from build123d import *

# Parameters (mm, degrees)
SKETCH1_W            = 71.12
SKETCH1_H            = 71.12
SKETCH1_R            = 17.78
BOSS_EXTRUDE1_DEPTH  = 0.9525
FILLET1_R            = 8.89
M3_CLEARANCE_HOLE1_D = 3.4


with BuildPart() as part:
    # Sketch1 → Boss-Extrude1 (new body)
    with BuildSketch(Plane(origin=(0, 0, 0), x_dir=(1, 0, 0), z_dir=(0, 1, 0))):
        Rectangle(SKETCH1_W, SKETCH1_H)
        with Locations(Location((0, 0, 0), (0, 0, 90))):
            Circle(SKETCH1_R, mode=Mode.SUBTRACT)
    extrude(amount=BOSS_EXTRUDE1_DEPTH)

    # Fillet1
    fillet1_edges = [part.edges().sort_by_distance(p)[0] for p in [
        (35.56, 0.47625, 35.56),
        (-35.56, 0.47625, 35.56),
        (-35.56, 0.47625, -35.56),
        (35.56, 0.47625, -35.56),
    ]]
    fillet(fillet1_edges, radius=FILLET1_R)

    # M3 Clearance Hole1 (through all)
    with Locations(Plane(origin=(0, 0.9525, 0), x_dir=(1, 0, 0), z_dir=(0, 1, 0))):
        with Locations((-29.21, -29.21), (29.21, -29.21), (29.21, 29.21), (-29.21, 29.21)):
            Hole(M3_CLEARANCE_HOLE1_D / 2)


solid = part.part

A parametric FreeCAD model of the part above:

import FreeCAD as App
import Part
import Sketcher
from FreeCAD import Vector
Q = App.Units.Quantity


def edges_at(feature, points):
    """Names of the edges that pass closest to the given points."""
    edges = feature.Shape.Edges
    near = lambda p: min(range(len(edges)), key=lambda i: edges[i].distToShape(Part.Vertex(*p))[0])
    return sorted({f"Edge{near(p) + 1}" for p in points})

doc = App.newDocument("Part")
params = doc.addObject("Spreadsheet::Sheet", "Params")
for row, (alias, value) in enumerate([
    ("sketch1_diameter", "1.4 in"),
    ("sketch1_width", "2.8 in"),
    ("pad1_length", "0.0375 in"),
    ("fillet_radius", "0.35 in"),
    ("hole_diameter", "3.4 mm"),
], start=1):
    params.set(f"A{row}", alias)
    params.set(f"B{row}", "=" + value)
    params.setAlias(f"B{row}", alias)

body = doc.addObject("PartDesign::Body", "Body")

# Sketch on XZ plane
sketch1 = doc.addObject("Sketcher::SketchObject", "Sketch")
body.addObject(sketch1)
sketch1.AttachmentSupport = (doc.XZ_Plane, [""])
sketch1.MapMode = "FlatFace"
sketch1.addGeometry([
    Part.LineSegment(Vector(-36, -36, 0), Vector(-36, 36, 0)),  # 0
    Part.LineSegment(Vector(-36, 36, 0), Vector(36, 36, 0)),  # 1
    Part.LineSegment(Vector(36, 36, 0), Vector(36, -36, 0)),  # 2
    Part.LineSegment(Vector(36, -36, 0), Vector(-36, -36, 0)),  # 3
    Part.Circle(Vector(0, 0, 0), Vector(0, 0, 1), 18),  # 4
], False)
sketch1.addConstraint([
    Sketcher.Constraint("Coincident", 0, 2, 1, 1),
    Sketcher.Constraint("Coincident", 1, 2, 2, 1),
    Sketcher.Constraint("Coincident", 2, 2, 3, 1),
    Sketcher.Constraint("Coincident", 3, 2, 0, 1),
    Sketcher.Constraint("Vertical", 0),
    Sketcher.Constraint("Horizontal", 1),
    Sketcher.Constraint("Vertical", 2),
    Sketcher.Constraint("Horizontal", 3),
    Sketcher.Constraint("Coincident", 4, 3, -1, 1),
    Sketcher.Constraint("Symmetric", 0, 2, 2, 2, -1, 1),
    Sketcher.Constraint("Equal", 3, 0),
    Sketcher.Constraint("Diameter", 4, Q("1.4 in")),
    Sketcher.Constraint("DistanceX", 1, 1, 1, 2, Q("2.8 in")),
])
sketch1.setExpression("Constraints[11]", "Params.sketch1_diameter")
sketch1.setExpression("Constraints[12]", "Params.sketch1_width")
pad1 = doc.addObject("PartDesign::Pad", "Pad")
body.addObject(pad1)
pad1.Profile = sketch1
pad1.setExpression("Length", "Params.pad1_length")
pad1.Reversed = True
doc.recompute()

fillet = doc.addObject("PartDesign::Fillet", "Fillet")
body.addObject(fillet)
fillet.Base = (pad1, edges_at(pad1, [
    (35.56, 0.476, 35.56),
    (-35.56, 0.476, 35.56),
    (-35.56, 0.476, -35.56),
    (35.56, 0.476, -35.56),
]))
fillet.setExpression("Radius", "Params.fillet_radius")

# Sketch on XZ plane
sketch2 = doc.addObject("Sketcher::SketchObject", "Sketch001")
body.addObject(sketch2)
sketch2.AttachmentSupport = (doc.XZ_Plane, [""])
sketch2.MapMode = "FlatFace"
sketch2.AttachmentOffset = App.Placement(Vector(0, 0, -0.0375 * 25.4), App.Rotation())
sketch2.addGeometry([
    Part.Circle(Vector(-29.2, 29.2, 0), Vector(0, 0, 1), 1.7),
    Part.Circle(Vector(29.2, 29.2, 0), Vector(0, 0, 1), 1.7),
    Part.Circle(Vector(29.2, -29.2, 0), Vector(0, 0, 1), 1.7),
    Part.Circle(Vector(-29.2, -29.2, 0), Vector(0, 0, 1), 1.7),
], False)
sketch2.addConstraint([
    Sketcher.Constraint("Equal", 0, 1),
    Sketcher.Constraint("Equal", 1, 2),
    Sketcher.Constraint("Equal", 2, 3),
    Sketcher.Constraint("Symmetric", 0, 3, 2, 3, -1, 1),
    Sketcher.Constraint("Symmetric", 1, 3, 3, 3, -1, 1),
    Sketcher.Constraint("Symmetric", 0, 3, 1, 3, -2),
    Sketcher.Constraint("DistanceX", 0, 3, 1, 3, Q("2.3 in")),
    Sketcher.Constraint("DistanceY", 2, 3, 1, 3, Q("2.3 in")),
    Sketcher.Constraint("Diameter", 0, Q("3.4 mm")),
])
doc.recompute()
hole = doc.addObject("PartDesign::Hole", "Hole")
body.addObject(hole)
hole.Profile = sketch2
hole.ThreadType = "None"
hole.setExpression("Diameter", "Params.hole_diameter")
hole.DepthType = "ThroughAll"
hole.Reversed = True

doc.recompute()
